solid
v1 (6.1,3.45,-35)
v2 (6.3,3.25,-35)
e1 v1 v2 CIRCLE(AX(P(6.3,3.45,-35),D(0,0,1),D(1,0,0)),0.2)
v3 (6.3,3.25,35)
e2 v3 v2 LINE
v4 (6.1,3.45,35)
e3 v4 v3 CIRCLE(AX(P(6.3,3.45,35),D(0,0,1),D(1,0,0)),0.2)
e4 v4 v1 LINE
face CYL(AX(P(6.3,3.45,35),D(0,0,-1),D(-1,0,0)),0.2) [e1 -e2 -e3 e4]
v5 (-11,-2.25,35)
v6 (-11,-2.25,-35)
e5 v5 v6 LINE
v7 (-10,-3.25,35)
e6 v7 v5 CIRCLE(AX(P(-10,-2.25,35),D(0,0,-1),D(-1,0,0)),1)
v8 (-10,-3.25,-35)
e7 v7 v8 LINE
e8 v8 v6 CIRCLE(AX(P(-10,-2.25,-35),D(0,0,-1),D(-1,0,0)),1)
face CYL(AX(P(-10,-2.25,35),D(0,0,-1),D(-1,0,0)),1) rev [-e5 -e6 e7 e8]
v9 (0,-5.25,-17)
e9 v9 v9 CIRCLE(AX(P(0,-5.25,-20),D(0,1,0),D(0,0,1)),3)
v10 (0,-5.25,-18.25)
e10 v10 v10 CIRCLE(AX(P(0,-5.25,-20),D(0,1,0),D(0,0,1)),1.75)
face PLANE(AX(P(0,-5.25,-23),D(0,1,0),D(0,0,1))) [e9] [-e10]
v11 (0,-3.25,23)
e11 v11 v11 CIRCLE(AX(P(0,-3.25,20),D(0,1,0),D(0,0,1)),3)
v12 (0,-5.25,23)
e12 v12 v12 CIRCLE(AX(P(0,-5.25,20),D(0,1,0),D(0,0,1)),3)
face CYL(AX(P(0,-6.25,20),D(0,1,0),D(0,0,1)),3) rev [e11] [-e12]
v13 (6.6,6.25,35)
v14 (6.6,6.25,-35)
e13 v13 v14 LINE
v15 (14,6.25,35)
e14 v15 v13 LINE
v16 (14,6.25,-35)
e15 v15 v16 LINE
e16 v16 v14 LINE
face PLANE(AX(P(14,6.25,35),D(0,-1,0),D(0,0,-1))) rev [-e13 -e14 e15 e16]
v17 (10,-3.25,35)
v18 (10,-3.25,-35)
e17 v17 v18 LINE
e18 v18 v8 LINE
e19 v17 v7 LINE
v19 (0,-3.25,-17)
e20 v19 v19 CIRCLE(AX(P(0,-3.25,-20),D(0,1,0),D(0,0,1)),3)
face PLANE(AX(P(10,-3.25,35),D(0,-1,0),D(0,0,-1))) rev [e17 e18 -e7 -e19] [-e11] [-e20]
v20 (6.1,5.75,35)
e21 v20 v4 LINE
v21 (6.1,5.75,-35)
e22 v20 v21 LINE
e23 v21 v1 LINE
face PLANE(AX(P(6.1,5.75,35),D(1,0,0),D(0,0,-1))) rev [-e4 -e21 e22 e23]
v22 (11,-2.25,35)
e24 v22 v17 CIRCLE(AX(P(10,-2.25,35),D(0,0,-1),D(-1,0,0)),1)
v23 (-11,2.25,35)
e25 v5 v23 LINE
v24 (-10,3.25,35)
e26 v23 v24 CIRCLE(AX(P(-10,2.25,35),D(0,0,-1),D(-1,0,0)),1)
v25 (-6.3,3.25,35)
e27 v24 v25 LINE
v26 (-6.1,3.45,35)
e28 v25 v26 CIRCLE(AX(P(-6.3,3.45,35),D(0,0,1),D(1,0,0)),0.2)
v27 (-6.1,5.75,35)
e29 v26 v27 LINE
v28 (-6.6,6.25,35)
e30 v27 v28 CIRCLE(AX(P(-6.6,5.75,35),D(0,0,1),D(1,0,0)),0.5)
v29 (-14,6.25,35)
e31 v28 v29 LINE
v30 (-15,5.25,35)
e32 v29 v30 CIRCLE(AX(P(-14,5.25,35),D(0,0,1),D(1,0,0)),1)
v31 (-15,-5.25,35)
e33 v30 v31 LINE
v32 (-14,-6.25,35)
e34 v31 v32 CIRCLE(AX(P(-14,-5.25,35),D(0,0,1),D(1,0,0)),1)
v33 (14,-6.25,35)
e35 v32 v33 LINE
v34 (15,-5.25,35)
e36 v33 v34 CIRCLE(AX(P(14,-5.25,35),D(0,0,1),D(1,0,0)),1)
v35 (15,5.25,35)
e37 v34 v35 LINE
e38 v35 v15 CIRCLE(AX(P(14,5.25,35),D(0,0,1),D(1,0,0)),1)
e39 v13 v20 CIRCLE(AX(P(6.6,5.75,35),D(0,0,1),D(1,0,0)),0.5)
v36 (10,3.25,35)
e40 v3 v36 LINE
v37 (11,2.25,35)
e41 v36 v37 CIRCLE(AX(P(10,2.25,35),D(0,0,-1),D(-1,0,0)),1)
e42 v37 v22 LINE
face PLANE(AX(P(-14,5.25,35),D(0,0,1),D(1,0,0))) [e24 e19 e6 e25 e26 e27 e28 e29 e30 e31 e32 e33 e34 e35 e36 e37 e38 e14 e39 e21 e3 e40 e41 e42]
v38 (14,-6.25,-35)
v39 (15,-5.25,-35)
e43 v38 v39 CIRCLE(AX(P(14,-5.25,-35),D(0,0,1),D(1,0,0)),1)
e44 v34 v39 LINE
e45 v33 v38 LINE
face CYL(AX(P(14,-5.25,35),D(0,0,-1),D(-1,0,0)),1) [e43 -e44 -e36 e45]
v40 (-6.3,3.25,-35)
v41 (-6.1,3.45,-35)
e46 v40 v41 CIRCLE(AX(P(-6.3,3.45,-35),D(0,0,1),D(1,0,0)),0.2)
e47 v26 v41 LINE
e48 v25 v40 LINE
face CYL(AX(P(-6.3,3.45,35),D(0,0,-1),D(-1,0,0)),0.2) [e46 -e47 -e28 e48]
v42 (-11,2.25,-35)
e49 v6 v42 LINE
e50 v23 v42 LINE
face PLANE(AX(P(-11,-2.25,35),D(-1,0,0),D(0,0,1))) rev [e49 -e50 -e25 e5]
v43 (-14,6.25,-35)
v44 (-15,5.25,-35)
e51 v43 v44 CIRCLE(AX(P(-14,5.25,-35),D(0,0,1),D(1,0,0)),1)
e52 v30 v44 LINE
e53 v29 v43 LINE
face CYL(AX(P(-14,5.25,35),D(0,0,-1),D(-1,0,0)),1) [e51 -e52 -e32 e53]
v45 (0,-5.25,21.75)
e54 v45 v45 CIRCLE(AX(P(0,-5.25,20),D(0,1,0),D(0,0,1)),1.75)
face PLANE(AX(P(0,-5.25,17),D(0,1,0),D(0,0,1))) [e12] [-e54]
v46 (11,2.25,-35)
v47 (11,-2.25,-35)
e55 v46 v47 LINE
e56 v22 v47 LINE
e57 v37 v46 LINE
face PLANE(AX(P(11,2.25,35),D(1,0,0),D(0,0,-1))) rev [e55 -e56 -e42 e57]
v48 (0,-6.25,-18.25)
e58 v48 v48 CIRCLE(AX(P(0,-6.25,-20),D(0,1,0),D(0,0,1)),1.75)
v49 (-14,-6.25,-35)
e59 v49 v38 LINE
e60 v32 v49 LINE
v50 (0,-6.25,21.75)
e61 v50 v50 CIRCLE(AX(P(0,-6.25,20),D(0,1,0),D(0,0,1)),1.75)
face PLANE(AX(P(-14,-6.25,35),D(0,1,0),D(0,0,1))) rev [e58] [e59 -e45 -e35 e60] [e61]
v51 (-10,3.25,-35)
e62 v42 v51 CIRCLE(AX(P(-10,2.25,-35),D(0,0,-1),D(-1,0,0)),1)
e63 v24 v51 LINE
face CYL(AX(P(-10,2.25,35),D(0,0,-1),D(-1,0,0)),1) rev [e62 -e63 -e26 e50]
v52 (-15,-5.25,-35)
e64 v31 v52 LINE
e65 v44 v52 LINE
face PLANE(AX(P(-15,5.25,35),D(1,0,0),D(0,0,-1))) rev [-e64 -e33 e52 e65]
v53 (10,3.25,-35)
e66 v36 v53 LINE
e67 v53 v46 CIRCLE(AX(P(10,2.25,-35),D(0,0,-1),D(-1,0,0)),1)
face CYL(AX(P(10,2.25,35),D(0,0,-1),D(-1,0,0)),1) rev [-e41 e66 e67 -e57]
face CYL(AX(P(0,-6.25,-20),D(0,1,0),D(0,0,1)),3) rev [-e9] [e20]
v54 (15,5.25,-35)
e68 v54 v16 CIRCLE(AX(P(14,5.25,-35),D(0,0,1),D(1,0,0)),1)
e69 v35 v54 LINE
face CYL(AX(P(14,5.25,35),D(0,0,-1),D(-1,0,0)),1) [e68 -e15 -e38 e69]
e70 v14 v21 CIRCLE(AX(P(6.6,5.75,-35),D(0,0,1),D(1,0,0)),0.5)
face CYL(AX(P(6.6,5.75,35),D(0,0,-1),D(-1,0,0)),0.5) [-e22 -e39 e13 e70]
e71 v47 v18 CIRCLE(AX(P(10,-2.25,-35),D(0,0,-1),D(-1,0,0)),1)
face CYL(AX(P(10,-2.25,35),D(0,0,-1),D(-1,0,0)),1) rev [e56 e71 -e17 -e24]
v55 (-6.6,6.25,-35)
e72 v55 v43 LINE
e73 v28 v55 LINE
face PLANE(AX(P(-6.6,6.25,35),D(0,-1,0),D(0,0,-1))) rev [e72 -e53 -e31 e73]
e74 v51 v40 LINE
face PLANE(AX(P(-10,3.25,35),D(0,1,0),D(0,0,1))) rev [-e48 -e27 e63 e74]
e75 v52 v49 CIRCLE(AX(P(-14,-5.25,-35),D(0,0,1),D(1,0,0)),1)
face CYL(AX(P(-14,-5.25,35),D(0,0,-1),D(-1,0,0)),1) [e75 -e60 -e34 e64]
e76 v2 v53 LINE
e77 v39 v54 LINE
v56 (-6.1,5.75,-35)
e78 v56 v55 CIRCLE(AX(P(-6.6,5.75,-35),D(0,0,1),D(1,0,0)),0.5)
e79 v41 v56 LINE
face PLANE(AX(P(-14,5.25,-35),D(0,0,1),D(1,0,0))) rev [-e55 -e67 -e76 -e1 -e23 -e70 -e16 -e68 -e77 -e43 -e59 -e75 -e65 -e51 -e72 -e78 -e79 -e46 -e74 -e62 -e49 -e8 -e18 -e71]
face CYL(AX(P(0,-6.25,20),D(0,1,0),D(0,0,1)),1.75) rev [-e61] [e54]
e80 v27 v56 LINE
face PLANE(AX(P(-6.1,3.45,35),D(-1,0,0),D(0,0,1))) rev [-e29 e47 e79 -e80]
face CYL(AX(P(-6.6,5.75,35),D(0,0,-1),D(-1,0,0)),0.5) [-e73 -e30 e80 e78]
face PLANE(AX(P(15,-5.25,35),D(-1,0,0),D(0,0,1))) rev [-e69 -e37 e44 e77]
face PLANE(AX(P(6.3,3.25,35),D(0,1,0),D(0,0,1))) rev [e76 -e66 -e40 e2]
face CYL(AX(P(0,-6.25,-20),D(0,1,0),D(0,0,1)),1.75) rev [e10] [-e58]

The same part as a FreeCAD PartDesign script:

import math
import FreeCAD as App
import Part
import Sketcher

V = App.Vector


def add_polygon(sketch, points):
    """Adds a closed chain of lines whose ends are joined by coincident constraints."""
    first, n = sketch.GeometryCount, len(points)
    for a, b in zip(points, points[1:] + points[:1]):
        sketch.addGeometry(Part.LineSegment(App.Vector(*a, 0), App.Vector(*b, 0)), False)
    for i in range(n):
        sketch.addConstraint(Sketcher.Constraint("Coincident", first + i, 2, first + (i + 1) % n, 1))

doc = App.newDocument("Part")
body = doc.addObject("PartDesign::Body", "Body")

sketch1 = body.newObject("Sketcher::SketchObject", "Sketch")
sketch1.AttachmentSupport = (doc.getObject("XY_Plane"), [""])
sketch1.MapMode = "FlatFace"
sketch1.addGeometry([
    Part.LineSegment(V(-15, 5.25, 0), V(-15, -5.25, 0)),
    Part.ArcOfCircle(Part.Circle(V(-14, -5.25, 0), V(0, 0, 1), 1), math.radians(-180), math.radians(-90)),
    Part.LineSegment(V(-14, -6.25, 0), V(14, -6.25, 0)),
    Part.ArcOfCircle(Part.Circle(V(14, -5.25, 0), V(0, 0, 1), 1), math.radians(-90), math.radians(0)),
    Part.LineSegment(V(15, -5.25, 0), V(15, 5.25, 0)),
    Part.ArcOfCircle(Part.Circle(V(14, 5.25, 0), V(0, 0, 1), 1), math.radians(0), math.radians(90)),
    Part.LineSegment(V(14, 6.25, 0), V(6.6, 6.25, 0)),
    Part.ArcOfCircle(Part.Circle(V(6.6, 5.75, 0), V(0, 0, 1), 0.5), math.radians(90), math.radians(180)),
    Part.LineSegment(V(6.1, 5.75, 0), V(6.1, 3.45, 0)),
    Part.ArcOfCircle(Part.Circle(V(6.3, 3.45, 0), V(0, 0, 1), 0.2), math.radians(-180), math.radians(-90)),
    Part.LineSegment(V(6.3, 3.25, 0), V(10, 3.25, 0)),
    Part.ArcOfCircle(Part.Circle(V(10, 2.25, 0), V(0, 0, 1), 1), math.radians(0), math.radians(90)),
    Part.LineSegment(V(11, 2.25, 0), V(11, -2.25, 0)),
    Part.ArcOfCircle(Part.Circle(V(10, -2.25, 0), V(0, 0, 1), 1), math.radians(-90), math.radians(0)),
    Part.LineSegment(V(10, -3.25, 0), V(-10, -3.25, 0)),
    Part.ArcOfCircle(Part.Circle(V(-10, -2.25, 0), V(0, 0, 1), 1), math.radians(-180), math.radians(-90)),
    Part.LineSegment(V(-11, -2.25, 0), V(-11, 2.25, 0)),
    Part.ArcOfCircle(Part.Circle(V(-10, 2.25, 0), V(0, 0, 1), 1), math.radians(90), math.radians(180)),
    Part.LineSegment(V(-10, 3.25, 0), V(-6.3, 3.25, 0)),
    Part.ArcOfCircle(Part.Circle(V(-6.3, 3.45, 0), V(0, 0, 1), 0.2), math.radians(-90), math.radians(0)),
    Part.LineSegment(V(-6.1, 3.45, 0), V(-6.1, 5.75, 0)),
    Part.ArcOfCircle(Part.Circle(V(-6.6, 5.75, 0), V(0, 0, 1), 0.5), math.radians(0), math.radians(90)),
    Part.LineSegment(V(-6.6, 6.25, 0), V(-14, 6.25, 0)),
    Part.ArcOfCircle(Part.Circle(V(-14, 5.25, 0), V(0, 0, 1), 1), math.radians(90), math.radians(180)),
], False)
sketch1.addConstraint([
    Sketcher.Constraint("Tangent", 0, 2, 1, 1),
    Sketcher.Constraint("Tangent", 1, 2, 2, 1),
    Sketcher.Constraint("Tangent", 2, 2, 3, 1),
    Sketcher.Constraint("Tangent", 3, 2, 4, 1),
    Sketcher.Constraint("Tangent", 4, 2, 5, 1),
    Sketcher.Constraint("Tangent", 5, 2, 6, 1),
    Sketcher.Constraint("Tangent", 6, 2, 7, 1),
    Sketcher.Constraint("Tangent", 7, 2, 8, 1),
    Sketcher.Constraint("Tangent", 8, 2, 9, 1),
    Sketcher.Constraint("Tangent", 9, 2, 10, 1),
    Sketcher.Constraint("Tangent", 10, 2, 11, 2),
    Sketcher.Constraint("Tangent", 11, 1, 12, 1),
    Sketcher.Constraint("Tangent", 12, 2, 13, 2),
    Sketcher.Constraint("Tangent", 13, 1, 14, 1),
    Sketcher.Constraint("Tangent", 14, 2, 15, 2),
    Sketcher.Constraint("Tangent", 15, 1, 16, 1),
    Sketcher.Constraint("Tangent", 16, 2, 17, 2),
    Sketcher.Constraint("Tangent", 17, 1, 18, 1),
    Sketcher.Constraint("Tangent", 18, 2, 19, 1),
    Sketcher.Constraint("Tangent", 19, 2, 20, 1),
    Sketcher.Constraint("Tangent", 20, 2, 21, 1),
    Sketcher.Constraint("Tangent", 21, 2, 22, 1),
    Sketcher.Constraint("Tangent", 22, 2, 23, 1),
    Sketcher.Constraint("Tangent", 23, 2, 0, 1),
    Sketcher.Constraint("Vertical", 0),
    Sketcher.Constraint("Horizontal", 2),
    Sketcher.Constraint("Vertical", 4),
    Sketcher.Constraint("Horizontal", 6),
    Sketcher.Constraint("Vertical", 8),
    Sketcher.Constraint("Horizontal", 10),
    Sketcher.Constraint("Vertical", 12),
    Sketcher.Constraint("Horizontal", 14),
    Sketcher.Constraint("Vertical", 16),
    Sketcher.Constraint("Horizontal", 18),
    Sketcher.Constraint("Vertical", 20),
    Sketcher.Constraint("Horizontal", 22),
    Sketcher.Constraint("Equal", 1, 3),
    Sketcher.Constraint("Equal", 3, 5),
    Sketcher.Constraint("Equal", 5, 11),
    Sketcher.Constraint("Equal", 11, 13),
    Sketcher.Constraint("Equal", 13, 15),
    Sketcher.Constraint("Equal", 15, 17),
    Sketcher.Constraint("Equal", 9, 19),
    Sketcher.Constraint("Equal", 7, 21),
    Sketcher.Constraint("Equal", 17, 23),
    Sketcher.Constraint("Symmetric", 1, 3, 5, 3, -1, 1),
    Sketcher.Constraint("Symmetric", 11, 3, 15, 3, -1, 1),
    Sketcher.Constraint("Symmetric", 9, 3, 19, 3, -2),
    Sketcher.Constraint("Horizontal", 7, 3, 21, 3),
    Sketcher.Constraint("Radius", 1, 1.0),
    Sketcher.Constraint("Radius", 7, 0.5),
    Sketcher.Constraint("Radius", 9, 0.2),
    Sketcher.Constraint("DistanceX", 2, 1, 2, 2, 28.0),
    Sketcher.Constraint("DistanceX", 14, 2, 14, 1, 20.0),
    Sketcher.Constraint("DistanceX", 6, 2, 6, 1, 7.4),
    Sketcher.Constraint("DistanceY", 0, 2, 0, 1, 10.5),
    Sketcher.Constraint("DistanceY", 8, 2, 8, 1, 2.3),
])
pad1 = body.newObject("PartDesign::Pad", "Pad")
pad1.Profile = sketch1
pad1.Type = "TwoLengths"
pad1.Length = 35
pad1.Length2 = 35

sketch2 = body.newObject("Sketcher::SketchObject", "Sketch001")
sketch2.AttachmentSupport = (doc.getObject("YZ_Plane"), [""])
sketch2.MapMode = "FlatFace"
add_polygon(sketch2, [(-3.2, 17), (-3.2, 20), (-6.2, 20), (-6.2, 18.2), (-5.2, 18.2), (-5.2, 17)])
sketch2.addGeometry(Part.LineSegment(V(-6.2, 20, 0), V(-3.2, 20, 0)), True)
sketch2.addConstraint([
    Sketcher.Constraint("Vertical", 0),
    Sketcher.Constraint("Horizontal", 1),
    Sketcher.Constraint("Vertical", 2),
    Sketcher.Constraint("Horizontal", 3),
    Sketcher.Constraint("Vertical", 4),
    Sketcher.Constraint("Horizontal", 5),
    Sketcher.Constraint("Horizontal", 6),
    Sketcher.Constraint("Coincident", 6, 1, 1, 2),
    Sketcher.Constraint("Vertical", 5, 2, 6, 2),
    Sketcher.Constraint("Equal", 6, 0),
    Sketcher.Constraint("DistanceX", 1, 2, 1, 1, 3.0),
    Sketcher.Constraint("DistanceX", 3, 1, 3, 2, 1.0),
    Sketcher.Constraint("DistanceY", -1, 1, 0, 2, 20.0),
    Sketcher.Constraint("DistanceY", 2, 2, 2, 1, 1.75),
    Sketcher.Constraint("DistanceX", 0, 2, -1, 1, 3.25),
])
groove = body.newObject("PartDesign::Groove", "Groove")
groove.Profile = sketch2
groove.ReferenceAxis = (sketch2, ["Axis0"])
groove.Angle = 360

sketch3 = body.newObject("Sketcher::SketchObject", "Sketch002")
sketch3.AttachmentSupport = (doc.getObject("YZ_Plane"), [""])
sketch3.MapMode = "FlatFace"
add_polygon(sketch3, [(-3.2, -23), (-3.2, -20), (-6.2, -20), (-6.2, -21.8), (-5.2, -21.8), (-5.2, -23)])
sketch3.addGeometry(Part.LineSegment(V(-6.2, -20, 0), V(-3.2, -20, 0)), True)
sketch3.addConstraint([
    Sketcher.Constraint("Vertical", 0),
    Sketcher.Constraint("Horizontal", 1),
    Sketcher.Constraint("Vertical", 2),
    Sketcher.Constraint("Horizontal", 3),
    Sketcher.Constraint("Vertical", 4),
    Sketcher.Constraint("Horizontal", 5),
    Sketcher.Constraint("Horizontal", 6),
    Sketcher.Constraint("Coincident", 6, 1, 1, 2),
    Sketcher.Constraint("Vertical", 5, 2, 6, 2),
    Sketcher.Constraint("Equal", 6, 0),
    Sketcher.Constraint("DistanceX", 1, 2, 1, 1, 3.0),
    Sketcher.Constraint("DistanceX", 3, 1, 3, 2, 1.0),
    Sketcher.Constraint("DistanceY", 0, 2, -1, 1, 20.0),
    Sketcher.Constraint("DistanceY", 2, 2, 2, 1, 1.75),
    Sketcher.Constraint("DistanceX", 0, 2, -1, 1, 3.25),
])
groove2 = body.newObject("PartDesign::Groove", "Groove001")
groove2.Profile = sketch3
groove2.ReferenceAxis = (sketch3, ["Axis0"])
groove2.Angle = 360

doc.recompute()
